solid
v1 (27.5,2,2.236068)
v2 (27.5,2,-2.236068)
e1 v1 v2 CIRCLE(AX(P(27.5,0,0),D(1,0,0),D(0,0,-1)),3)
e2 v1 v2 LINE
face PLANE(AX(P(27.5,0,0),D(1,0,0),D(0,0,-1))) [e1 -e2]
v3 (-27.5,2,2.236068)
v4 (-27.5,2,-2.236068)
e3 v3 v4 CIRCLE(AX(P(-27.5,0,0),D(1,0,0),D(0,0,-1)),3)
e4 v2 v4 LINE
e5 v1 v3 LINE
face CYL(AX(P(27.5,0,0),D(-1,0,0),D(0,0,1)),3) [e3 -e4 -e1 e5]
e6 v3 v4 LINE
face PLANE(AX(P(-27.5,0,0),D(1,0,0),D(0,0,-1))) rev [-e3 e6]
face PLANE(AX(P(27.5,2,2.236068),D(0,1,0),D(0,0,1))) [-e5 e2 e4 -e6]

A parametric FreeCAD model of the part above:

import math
import FreeCAD as App
import Part
import Sketcher
Q = App.Units.Quantity

doc = App.newDocument("Part")
body = doc.addObject("PartDesign::Body", "Body")

# Sketch on YZ plane
sketch1 = doc.addObject("Sketcher::SketchObject", "Sketch")
body.addObject(sketch1)
sketch1.AttachmentSupport = (doc.YZ_Plane, [""])
sketch1.MapMode = "FlatFace"
sketch1.addGeometry([
    Part.LineSegment(App.Vector(2, -2.236068, 0), App.Vector(2, 2.236068, 0)),
    Part.ArcOfCircle(Part.Circle(App.Vector(0, 0, 0), App.Vector(0, 0, 1), 3), math.radians(48.189685), math.radians(311.810315)),
], False)
sketch1.addConstraint([
    Sketcher.Constraint("Coincident", 0, 1, 1, 2),
    Sketcher.Constraint("Coincident", 1, 1, 0, 2),
    Sketcher.Constraint("Vertical", 0),
    Sketcher.Constraint("Coincident", 1, 3, -1, 1),
    Sketcher.Constraint("Radius", 1, Q("3 mm")),
    Sketcher.Constraint("DistanceX", -1, 1, 0, 1, Q("2 mm")),
])
pad1 = doc.addObject("PartDesign::Pad", "Pad")
body.addObject(pad1)
pad1.Profile = sketch1
pad1.Length = 55
pad1.Midplane = True

doc.recompute()
